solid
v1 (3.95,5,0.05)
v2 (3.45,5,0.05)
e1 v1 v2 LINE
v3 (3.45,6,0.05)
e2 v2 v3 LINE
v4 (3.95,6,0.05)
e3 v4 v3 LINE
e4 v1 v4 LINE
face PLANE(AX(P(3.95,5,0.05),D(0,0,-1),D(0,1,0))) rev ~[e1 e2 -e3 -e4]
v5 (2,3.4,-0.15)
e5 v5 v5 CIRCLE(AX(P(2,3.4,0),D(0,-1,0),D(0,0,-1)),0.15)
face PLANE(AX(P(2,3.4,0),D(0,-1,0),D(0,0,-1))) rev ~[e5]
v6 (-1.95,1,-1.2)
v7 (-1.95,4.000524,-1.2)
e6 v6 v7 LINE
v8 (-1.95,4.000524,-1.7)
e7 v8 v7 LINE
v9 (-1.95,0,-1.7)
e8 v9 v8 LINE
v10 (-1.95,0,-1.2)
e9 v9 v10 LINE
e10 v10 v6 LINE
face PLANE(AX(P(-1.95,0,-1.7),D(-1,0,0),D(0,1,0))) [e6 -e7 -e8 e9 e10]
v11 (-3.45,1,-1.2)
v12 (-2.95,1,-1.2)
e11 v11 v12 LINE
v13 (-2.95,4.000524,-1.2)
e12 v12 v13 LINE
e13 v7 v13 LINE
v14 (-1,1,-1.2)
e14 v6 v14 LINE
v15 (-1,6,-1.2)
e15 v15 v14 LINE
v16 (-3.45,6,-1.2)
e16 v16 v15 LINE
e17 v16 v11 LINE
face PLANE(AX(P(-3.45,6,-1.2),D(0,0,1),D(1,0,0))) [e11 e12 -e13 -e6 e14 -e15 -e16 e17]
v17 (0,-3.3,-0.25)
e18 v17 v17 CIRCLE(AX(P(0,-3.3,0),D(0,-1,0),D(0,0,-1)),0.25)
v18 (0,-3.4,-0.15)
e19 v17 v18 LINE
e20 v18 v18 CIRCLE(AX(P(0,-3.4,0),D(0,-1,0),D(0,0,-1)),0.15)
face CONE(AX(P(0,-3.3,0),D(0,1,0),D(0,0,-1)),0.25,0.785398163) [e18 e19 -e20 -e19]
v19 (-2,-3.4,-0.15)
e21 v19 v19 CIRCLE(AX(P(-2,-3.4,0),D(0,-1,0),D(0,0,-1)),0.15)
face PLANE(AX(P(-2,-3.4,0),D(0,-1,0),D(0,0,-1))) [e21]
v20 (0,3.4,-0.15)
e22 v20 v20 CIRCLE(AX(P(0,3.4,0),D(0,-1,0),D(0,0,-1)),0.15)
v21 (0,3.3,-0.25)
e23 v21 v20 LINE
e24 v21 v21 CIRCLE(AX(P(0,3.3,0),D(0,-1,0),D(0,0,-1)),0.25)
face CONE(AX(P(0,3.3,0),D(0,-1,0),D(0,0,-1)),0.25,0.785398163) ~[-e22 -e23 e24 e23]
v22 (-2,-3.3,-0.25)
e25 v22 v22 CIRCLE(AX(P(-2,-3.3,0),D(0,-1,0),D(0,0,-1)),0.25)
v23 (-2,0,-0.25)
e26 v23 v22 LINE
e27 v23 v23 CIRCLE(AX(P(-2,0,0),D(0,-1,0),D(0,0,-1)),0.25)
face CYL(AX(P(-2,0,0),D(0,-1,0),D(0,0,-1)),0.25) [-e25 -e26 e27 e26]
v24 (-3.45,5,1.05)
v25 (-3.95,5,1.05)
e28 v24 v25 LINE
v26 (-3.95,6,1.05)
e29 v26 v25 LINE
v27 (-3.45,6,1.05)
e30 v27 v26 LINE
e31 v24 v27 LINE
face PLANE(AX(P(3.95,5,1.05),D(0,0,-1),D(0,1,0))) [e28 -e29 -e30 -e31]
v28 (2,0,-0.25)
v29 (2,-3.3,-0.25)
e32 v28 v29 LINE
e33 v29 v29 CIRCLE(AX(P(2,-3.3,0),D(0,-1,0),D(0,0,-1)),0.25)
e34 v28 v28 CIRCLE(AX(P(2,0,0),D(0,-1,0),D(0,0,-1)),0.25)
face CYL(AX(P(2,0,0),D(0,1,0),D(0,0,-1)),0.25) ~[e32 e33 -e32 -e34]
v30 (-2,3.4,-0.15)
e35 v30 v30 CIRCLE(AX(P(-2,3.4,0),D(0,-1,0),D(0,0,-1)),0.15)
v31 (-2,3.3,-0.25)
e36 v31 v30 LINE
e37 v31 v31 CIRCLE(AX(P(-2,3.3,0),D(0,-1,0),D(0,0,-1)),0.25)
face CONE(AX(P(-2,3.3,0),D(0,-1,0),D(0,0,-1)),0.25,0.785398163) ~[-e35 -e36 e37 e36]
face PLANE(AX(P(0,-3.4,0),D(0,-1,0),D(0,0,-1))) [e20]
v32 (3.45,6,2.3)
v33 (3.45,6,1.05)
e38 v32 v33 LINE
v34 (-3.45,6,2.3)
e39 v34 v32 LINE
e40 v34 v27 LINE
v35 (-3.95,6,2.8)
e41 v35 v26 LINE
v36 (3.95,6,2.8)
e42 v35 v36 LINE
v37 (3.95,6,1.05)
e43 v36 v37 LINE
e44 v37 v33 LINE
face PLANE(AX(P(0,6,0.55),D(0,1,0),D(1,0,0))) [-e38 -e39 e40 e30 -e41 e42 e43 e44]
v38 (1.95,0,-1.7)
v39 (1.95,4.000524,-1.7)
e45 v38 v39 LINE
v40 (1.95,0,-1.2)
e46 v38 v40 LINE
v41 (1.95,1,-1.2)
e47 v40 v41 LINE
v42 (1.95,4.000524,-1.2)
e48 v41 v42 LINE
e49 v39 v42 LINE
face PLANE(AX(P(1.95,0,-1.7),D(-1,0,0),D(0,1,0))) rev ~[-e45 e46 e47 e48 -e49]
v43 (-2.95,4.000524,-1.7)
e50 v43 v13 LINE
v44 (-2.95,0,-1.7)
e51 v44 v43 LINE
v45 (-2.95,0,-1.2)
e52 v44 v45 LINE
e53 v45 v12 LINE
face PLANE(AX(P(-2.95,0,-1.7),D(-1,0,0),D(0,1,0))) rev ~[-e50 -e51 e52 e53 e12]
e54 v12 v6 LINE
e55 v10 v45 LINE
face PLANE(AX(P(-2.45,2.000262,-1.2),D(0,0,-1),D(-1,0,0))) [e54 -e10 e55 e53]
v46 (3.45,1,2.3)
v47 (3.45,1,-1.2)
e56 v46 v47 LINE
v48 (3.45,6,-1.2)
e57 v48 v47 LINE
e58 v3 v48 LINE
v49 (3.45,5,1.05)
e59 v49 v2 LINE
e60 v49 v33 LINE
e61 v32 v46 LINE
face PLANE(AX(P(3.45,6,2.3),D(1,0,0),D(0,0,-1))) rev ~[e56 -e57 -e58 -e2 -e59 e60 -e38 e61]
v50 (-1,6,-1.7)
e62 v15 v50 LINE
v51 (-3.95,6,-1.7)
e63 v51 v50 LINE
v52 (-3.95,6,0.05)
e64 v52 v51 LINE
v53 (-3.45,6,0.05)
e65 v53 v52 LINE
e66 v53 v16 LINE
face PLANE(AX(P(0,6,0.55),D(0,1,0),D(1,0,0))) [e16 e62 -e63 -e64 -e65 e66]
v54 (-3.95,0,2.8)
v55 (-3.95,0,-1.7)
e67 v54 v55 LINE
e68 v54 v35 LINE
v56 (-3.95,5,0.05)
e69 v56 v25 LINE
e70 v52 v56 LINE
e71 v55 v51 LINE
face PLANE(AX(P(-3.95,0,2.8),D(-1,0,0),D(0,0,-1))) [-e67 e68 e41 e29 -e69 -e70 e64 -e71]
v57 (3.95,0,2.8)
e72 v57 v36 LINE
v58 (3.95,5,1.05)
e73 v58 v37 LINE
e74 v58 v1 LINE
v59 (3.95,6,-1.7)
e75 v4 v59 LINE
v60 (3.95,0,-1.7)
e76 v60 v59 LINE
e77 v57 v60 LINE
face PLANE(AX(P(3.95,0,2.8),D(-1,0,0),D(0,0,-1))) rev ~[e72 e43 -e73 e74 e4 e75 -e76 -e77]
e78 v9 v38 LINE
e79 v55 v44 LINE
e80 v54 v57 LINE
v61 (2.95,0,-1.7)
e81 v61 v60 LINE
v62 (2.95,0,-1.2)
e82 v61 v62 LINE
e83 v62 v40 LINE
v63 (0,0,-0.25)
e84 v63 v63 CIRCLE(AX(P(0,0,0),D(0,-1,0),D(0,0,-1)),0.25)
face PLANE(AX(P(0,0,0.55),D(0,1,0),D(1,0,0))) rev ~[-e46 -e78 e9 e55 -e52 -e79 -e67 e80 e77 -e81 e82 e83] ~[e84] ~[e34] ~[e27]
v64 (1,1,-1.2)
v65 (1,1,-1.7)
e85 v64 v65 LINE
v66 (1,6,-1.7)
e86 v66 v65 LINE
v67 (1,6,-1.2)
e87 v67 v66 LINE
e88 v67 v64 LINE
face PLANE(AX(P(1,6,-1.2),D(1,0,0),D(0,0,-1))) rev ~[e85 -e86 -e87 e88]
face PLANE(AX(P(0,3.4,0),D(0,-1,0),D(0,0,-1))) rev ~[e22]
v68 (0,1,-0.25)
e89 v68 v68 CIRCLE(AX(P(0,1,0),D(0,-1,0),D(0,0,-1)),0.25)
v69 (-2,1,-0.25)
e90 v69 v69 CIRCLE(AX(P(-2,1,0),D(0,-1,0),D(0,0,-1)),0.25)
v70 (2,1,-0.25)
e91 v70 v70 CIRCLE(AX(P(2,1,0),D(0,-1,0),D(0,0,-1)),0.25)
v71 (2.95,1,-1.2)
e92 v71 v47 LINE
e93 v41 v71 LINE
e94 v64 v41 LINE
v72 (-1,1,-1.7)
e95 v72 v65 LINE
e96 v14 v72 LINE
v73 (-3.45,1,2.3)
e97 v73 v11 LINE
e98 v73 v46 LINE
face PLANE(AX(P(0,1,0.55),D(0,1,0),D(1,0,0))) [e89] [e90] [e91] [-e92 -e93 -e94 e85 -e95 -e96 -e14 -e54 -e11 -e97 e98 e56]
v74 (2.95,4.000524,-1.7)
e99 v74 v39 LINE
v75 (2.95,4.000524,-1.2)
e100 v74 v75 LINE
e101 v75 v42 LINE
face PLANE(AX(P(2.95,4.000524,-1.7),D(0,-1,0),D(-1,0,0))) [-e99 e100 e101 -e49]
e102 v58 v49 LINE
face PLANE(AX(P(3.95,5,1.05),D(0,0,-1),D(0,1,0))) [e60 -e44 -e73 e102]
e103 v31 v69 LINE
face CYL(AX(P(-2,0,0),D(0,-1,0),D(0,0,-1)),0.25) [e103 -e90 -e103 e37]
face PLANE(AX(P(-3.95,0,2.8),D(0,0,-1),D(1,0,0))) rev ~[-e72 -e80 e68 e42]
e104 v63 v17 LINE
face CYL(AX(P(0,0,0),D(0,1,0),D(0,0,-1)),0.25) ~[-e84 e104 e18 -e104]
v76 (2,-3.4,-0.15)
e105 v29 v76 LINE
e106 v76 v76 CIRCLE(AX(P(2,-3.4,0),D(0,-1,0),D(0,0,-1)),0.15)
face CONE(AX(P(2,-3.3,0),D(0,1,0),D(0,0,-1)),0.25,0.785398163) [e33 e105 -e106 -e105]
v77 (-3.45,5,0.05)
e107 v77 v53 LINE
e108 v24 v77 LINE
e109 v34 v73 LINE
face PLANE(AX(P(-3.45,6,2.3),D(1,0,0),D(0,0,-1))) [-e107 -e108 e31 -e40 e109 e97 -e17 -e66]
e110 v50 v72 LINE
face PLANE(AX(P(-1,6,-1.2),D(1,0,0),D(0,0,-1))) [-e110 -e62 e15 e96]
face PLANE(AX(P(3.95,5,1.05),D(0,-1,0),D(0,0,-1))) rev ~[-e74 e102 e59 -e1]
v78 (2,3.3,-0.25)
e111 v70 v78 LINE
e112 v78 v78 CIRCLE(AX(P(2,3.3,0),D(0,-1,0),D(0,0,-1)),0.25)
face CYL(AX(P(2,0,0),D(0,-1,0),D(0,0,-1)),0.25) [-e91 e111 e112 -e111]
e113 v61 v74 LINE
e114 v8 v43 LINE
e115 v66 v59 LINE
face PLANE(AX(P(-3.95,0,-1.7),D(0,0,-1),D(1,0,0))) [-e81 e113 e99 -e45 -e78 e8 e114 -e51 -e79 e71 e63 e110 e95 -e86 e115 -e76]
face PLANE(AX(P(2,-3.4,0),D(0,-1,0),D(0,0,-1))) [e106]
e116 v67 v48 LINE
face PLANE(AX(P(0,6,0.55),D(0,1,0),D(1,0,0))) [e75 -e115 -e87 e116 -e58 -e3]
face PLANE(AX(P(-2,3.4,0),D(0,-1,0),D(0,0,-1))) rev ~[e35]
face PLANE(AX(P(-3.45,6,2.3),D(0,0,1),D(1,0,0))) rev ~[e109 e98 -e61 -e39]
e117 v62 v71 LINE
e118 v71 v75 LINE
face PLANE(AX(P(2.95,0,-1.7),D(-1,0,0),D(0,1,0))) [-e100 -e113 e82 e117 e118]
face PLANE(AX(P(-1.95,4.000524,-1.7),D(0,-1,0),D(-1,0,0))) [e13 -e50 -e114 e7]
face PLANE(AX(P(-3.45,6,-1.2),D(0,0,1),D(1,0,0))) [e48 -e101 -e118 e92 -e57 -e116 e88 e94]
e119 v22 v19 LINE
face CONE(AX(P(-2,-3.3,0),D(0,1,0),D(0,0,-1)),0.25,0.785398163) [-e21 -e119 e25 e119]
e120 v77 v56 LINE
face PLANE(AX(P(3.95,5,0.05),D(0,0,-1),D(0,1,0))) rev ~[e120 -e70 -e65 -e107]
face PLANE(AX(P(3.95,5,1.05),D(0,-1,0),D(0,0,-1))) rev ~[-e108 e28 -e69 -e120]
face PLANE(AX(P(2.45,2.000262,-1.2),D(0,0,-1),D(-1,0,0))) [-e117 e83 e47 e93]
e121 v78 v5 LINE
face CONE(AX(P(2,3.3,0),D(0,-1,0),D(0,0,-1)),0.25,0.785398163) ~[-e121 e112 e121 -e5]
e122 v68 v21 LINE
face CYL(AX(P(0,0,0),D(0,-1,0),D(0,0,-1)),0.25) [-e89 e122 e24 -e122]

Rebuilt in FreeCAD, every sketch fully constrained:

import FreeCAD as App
import Part
import Sketcher
from FreeCAD import Vector


def edges_at(feature, points):
    """Names of the edges that pass closest to the given points."""
    edges = feature.Shape.Edges
    near = lambda p: min(range(len(edges)), key=lambda i: edges[i].distToShape(Part.Vertex(*p))[0])
    return sorted({f"Edge{near(p) + 1}" for p in points})

doc = App.newDocument("Part")
body = doc.addObject("PartDesign::Body", "Body")

sketch1 = doc.addObject("Sketcher::SketchObject", "Sketch")
body.addObject(sketch1)
sketch1.AttachmentSupport = (doc.XZ_Plane, [""])
sketch1.MapMode = "FlatFace"
sketch1.addGeometry([
    Part.LineSegment(Vector(-4, -1.7, 0), Vector(-4, 2.8, 0)),
    Part.LineSegment(Vector(-4, 2.8, 0), Vector(4, 2.8, 0)),
    Part.LineSegment(Vector(4, 2.8, 0), Vector(4, -1.7, 0)),
    Part.LineSegment(Vector(4, -1.7, 0), Vector(-4, -1.7, 0)),
], False)
sketch1.addConstraint([
    Sketcher.Constraint("Coincident", 0, 2, 1, 1),
    Sketcher.Constraint("Coincident", 1, 2, 2, 1),
    Sketcher.Constraint("Coincident", 2, 2, 3, 1),
    Sketcher.Constraint("Coincident", 3, 2, 0, 1),
    Sketcher.Constraint("Vertical", 0),
    Sketcher.Constraint("Horizontal", 1),
    Sketcher.Constraint("Vertical", 2),
    Sketcher.Constraint("Horizontal", 3),
    Sketcher.Constraint("DistanceX", 1, 1, 1, 2, 7.9),
    Sketcher.Constraint("DistanceY", 0, 1, 0, 2, 4.5),
    Sketcher.Constraint("DistanceY", -1, 1, 0, 2, 2.8),
    Sketcher.Constraint("DistanceX", 0, 2, -1, 1, 3.95),
])
pad1 = doc.addObject("PartDesign::Pad", "Pad")
body.addObject(pad1)
pad1.Profile = sketch1
pad1.Length = 6
pad1.Reversed = True

sketch2 = doc.addObject("Sketcher::SketchObject", "Sketch001")
body.addObject(sketch2)
sketch2.AttachmentSupport = (doc.XZ_Plane, [""])
sketch2.MapMode = "FlatFace"
sketch2.AttachmentOffset = App.Placement(Vector(0, 0, -6), App.Rotation())
sketch2.addGeometry([
    Part.LineSegment(Vector(-3.5, -1.2, 0), Vector(-3.5, 2.3, 0)),
    Part.LineSegment(Vector(-3.5, 2.3, 0), Vector(3.5, 2.3, 0)),
    Part.LineSegment(Vector(3.5, 2.3, 0), Vector(3.5, -1.2, 0)),
    Part.LineSegment(Vector(3.5, -1.2, 0), Vector(-3.5, -1.2, 0)),
], False)
sketch2.addConstraint([
    Sketcher.Constraint("Coincident", 0, 2, 1, 1),
    Sketcher.Constraint("Coincident", 1, 2, 2, 1),
    Sketcher.Constraint("Coincident", 2, 2, 3, 1),
    Sketcher.Constraint("Coincident", 3, 2, 0, 1),
    Sketcher.Constraint("Vertical", 0),
    Sketcher.Constraint("Horizontal", 1),
    Sketcher.Constraint("Vertical", 2),
    Sketcher.Constraint("Horizontal", 3),
    Sketcher.Constraint("DistanceX", 1, 1, 1, 2, 6.9),
    Sketcher.Constraint("DistanceY", 0, 1, 0, 2, 3.5),
    Sketcher.Constraint("DistanceY", -1, 1, 0, 2, 2.3),
    Sketcher.Constraint("DistanceX", 0, 2, -1, 1, 3.45),
])
pocket1 = doc.addObject("PartDesign::Pocket", "Pocket")
body.addObject(pocket1)
pocket1.Profile = sketch2
pocket1.Length = 5
pocket1.Reversed = True

sketch3 = doc.addObject("Sketcher::SketchObject", "Sketch002")
body.addObject(sketch3)
sketch3.AttachmentSupport = (doc.XZ_Plane, [""])
sketch3.MapMode = "FlatFace"
sketch3.addGeometry([
    Part.Circle(Vector(0, 0, 0), Vector(0, 0, 1), 0.25),
    Part.Circle(Vector(2, 0, 0), Vector(0, 0, 1), 0.25),
    Part.Circle(Vector(-2, 0, 0), Vector(0, 0, 1), 0.25),
], False)
sketch3.addConstraint([
    Sketcher.Constraint("Coincident", 0, 3, -1, 1),
    Sketcher.Constraint("Equal", 0, 1),
    Sketcher.Constraint("Equal", 1, 2),
    Sketcher.Constraint("Symmetric", 1, 3, 2, 3, -1, 1),
    Sketcher.Constraint("PointOnObject", 1, 3, -1),
    Sketcher.Constraint("Diameter", 0, 0.5),
    Sketcher.Constraint("DistanceX", -1, 1, 1, 3, 2.0),
])
pad2 = doc.addObject("PartDesign::Pad", "Pad001")
body.addObject(pad2)
pad2.Profile = sketch3
pad2.Length = 6.8
pad2.Midplane = True

sketch4 = doc.addObject("Sketcher::SketchObject", "Sketch003")
body.addObject(sketch4)
sketch4.AttachmentSupport = (doc.XZ_Plane, [""])
sketch4.MapMode = "FlatFace"
sketch4.AttachmentOffset = App.Placement(Vector(0, 0, -6), App.Rotation())
sketch4.addGeometry([
    Part.LineSegment(Vector(-1, -1.7, 0), Vector(-1, -1.2, 0)),
    Part.LineSegment(Vector(-1, -1.2, 0), Vector(1, -1.2, 0)),
    Part.LineSegment(Vector(1, -1.2, 0), Vector(1, -1.7, 0)),
    Part.LineSegment(Vector(1, -1.7, 0), Vector(-1, -1.7, 0)),
], False)
sketch4.addConstraint([
    Sketcher.Constraint("Coincident", 0, 2, 1, 1),
    Sketcher.Constraint("Coincident", 1, 2, 2, 1),
    Sketcher.Constraint("Coincident", 2, 2, 3, 1),
    Sketcher.Constraint("Coincident", 3, 2, 0, 1),
    Sketcher.Constraint("Vertical", 0),
    Sketcher.Constraint("Horizontal", 1),
    Sketcher.Constraint("Vertical", 2),
    Sketcher.Constraint("Horizontal", 3),
    Sketcher.Constraint("DistanceX", 1, 1, 1, 2, 2.0),
    Sketcher.Constraint("DistanceY", 0, 1, 0, 2, 0.5),
    Sketcher.Constraint("DistanceX", 0, 2, -1, 1, 1.0),
    Sketcher.Constraint("DistanceY", 0, 2, -1, 1, 1.2),
])
pocket2 = doc.addObject("PartDesign::Pocket", "Pocket001")
body.addObject(pocket2)
pocket2.Profile = sketch4
pocket2.Length = 5
pocket2.Reversed = True

sketch5 = doc.addObject("Sketcher::SketchObject", "Sketch004")
body.addObject(sketch5)
sketch5.AttachmentSupport = (doc.YZ_Plane, [""])
sketch5.MapMode = "FlatFace"
sketch5.AttachmentOffset = App.Placement(Vector(0, 0, 3.95), App.Rotation())
sketch5.addGeometry([
    Part.LineSegment(Vector(6, 1.1, 0), Vector(5, 1.1, 0)),
    Part.LineSegment(Vector(5, 1.1, 0), Vector(5, 0.1, 0)),
    Part.LineSegment(Vector(5, 0.1, 0), Vector(6, 0.1, 0)),
    Part.LineSegment(Vector(6, 0.1, 0), Vector(6, 1.1, 0)),
], False)
sketch5.addConstraint([
    Sketcher.Constraint("Coincident", 0, 2, 1, 1),
    Sketcher.Constraint("Coincident", 1, 2, 2, 1),
    Sketcher.Constraint("Coincident", 2, 2, 3, 1),
    Sketcher.Constraint("Coincident", 3, 2, 0, 1),
    Sketcher.Constraint("Horizontal", 0),
    Sketcher.Constraint("Vertical", 1),
    Sketcher.Constraint("Horizontal", 2),
    Sketcher.Constraint("Vertical", 3),
    Sketcher.Constraint("Equal", 2, 1),
    Sketcher.Constraint("DistanceX", 0, 2, 0, 1, 1.0),
    Sketcher.Constraint("DistanceX", -1, 1, 0, 2, 5.0),
    Sketcher.Constraint("DistanceY", -1, 1, 0, 2, 1.05),
])
pocket3 = doc.addObject("PartDesign::Pocket", "Pocket002")
body.addObject(pocket3)
pocket3.Profile = sketch5
pocket3.Length = 8

sketch6 = doc.addObject("Sketcher::SketchObject", "Sketch005")
body.addObject(sketch6)
sketch6.AttachmentSupport = (doc.XY_Plane, [""])
sketch6.MapMode = "FlatFace"
sketch6.AttachmentOffset = App.Placement(Vector(0, 0, -1.7), App.Rotation())
sketch6.addGeometry([
    Part.LineSegment(Vector(3, 4, 0), Vector(3, 0, 0)),
    Part.LineSegment(Vector(3, 0, 0), Vector(1.9, 0, 0)),
    Part.LineSegment(Vector(1.9, 0, 0), Vector(1.9, 4, 0)),
    Part.LineSegment(Vector(1.9, 4, 0), Vector(3, 4, 0)),
    Part.LineSegment(Vector(-1.9, 4, 0), Vector(-1.9, 0, 0)),
    Part.LineSegment(Vector(-1.9, 0, 0), Vector(-3, 0, 0)),
    Part.LineSegment(Vector(-3, 0, 0), Vector(-3, 4, 0)),
    Part.LineSegment(Vector(-3, 4, 0), Vector(-1.9, 4, 0)),
], False)
sketch6.addConstraint([
    Sketcher.Constraint("Coincident", 0, 2, 1, 1),
    Sketcher.Constraint("Coincident", 1, 2, 2, 1),
    Sketcher.Constraint("Coincident", 2, 2, 3, 1),
    Sketcher.Constraint("Coincident", 3, 2, 0, 1),
    Sketcher.Constraint("Coincident", 4, 2, 5, 1),
    Sketcher.Constraint("Coincident", 5, 2, 6, 1),
    Sketcher.Constraint("Coincident", 6, 2, 7, 1),
    Sketcher.Constraint("Coincident", 7, 2, 4, 1),
    Sketcher.Constraint("Vertical", 0),
    Sketcher.Constraint("Horizontal", 1),
    Sketcher.Constraint("Vertical", 2),
    Sketcher.Constraint("Horizontal", 3),
    Sketcher.Constraint("Vertical", 4),
    Sketcher.Constraint("Horizontal", 5),
    Sketcher.Constraint("Vertical", 6),
    Sketcher.Constraint("Horizontal", 7),
    Sketcher.Constraint("Symmetric", 1, 2, 4, 2, -1, 1),
    Sketcher.Constraint("Symmetric", 0, 2, 5, 2, -2),
    Sketcher.Constraint("Horizontal", 3, 2, 6, 2),
    Sketcher.Constraint("DistanceX", 1, 2, 1, 1, 1.0),
    Sketcher.Constraint("DistanceX", 4, 2, 1, 2, 3.9),
    Sketcher.Constraint("DistanceY", 0, 2, 0, 1, 4.000524),
])
pocket4 = doc.addObject("PartDesign::Pocket", "Pocket003")
body.addObject(pocket4)
pocket4.Profile = sketch6
pocket4.Length = 0.5
pocket4.Reversed = True
doc.recompute()

chamfer = doc.addObject("PartDesign::Chamfer", "Chamfer")
body.addObject(chamfer)
chamfer.Base = (pocket4, edges_at(pocket4, [
    (0, 3.4, 0.25),
    (0, -3.4, 0.25),
    (2, 3.4, 0.25),
    (2, -3.4, 0.25),
    (-2, 3.4, 0.25),
    (-2, -3.4, 0.25),
]))
chamfer.Size = 0.1

doc.recompute()
